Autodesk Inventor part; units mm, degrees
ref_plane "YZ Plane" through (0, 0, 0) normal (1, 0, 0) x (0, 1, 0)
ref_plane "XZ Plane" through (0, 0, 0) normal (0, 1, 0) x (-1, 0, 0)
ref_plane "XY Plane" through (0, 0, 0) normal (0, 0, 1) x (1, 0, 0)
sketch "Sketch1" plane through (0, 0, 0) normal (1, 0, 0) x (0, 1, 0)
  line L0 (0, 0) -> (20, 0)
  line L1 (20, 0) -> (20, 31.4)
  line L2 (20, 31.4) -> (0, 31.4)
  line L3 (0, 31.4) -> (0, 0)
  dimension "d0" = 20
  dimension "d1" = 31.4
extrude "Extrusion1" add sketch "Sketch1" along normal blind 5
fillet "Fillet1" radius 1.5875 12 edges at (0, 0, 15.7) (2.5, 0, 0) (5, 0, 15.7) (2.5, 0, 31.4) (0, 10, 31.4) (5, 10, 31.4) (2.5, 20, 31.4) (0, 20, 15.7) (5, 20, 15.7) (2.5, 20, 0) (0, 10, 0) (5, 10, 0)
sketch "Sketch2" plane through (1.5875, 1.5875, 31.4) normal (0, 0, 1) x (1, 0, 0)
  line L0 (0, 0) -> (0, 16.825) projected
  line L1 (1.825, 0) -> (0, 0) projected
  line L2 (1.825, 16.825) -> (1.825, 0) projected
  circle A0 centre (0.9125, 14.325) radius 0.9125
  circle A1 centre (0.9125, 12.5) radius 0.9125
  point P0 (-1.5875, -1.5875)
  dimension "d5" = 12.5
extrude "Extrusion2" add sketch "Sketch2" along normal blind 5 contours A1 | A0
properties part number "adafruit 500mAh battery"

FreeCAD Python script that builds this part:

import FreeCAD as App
import Part
import Sketcher
Q = App.Units.Quantity

doc = App.newDocument("Part")
body = doc.addObject("PartDesign::Body", "Body")

# Sketch on YZ plane
sketch1 = body.newObject("Sketcher::SketchObject", "Sketch")
sketch1.AttachmentSupport = (doc.getObject("YZ_Plane"), [""])
sketch1.MapMode = "FlatFace"
sketch1.addGeometry(Part.LineSegment(App.Vector(0, 31, 0), App.Vector(0, 0, 0)), False)
sketch1.addGeometry(Part.LineSegment(App.Vector(0, 0, 0), App.Vector(20, 0, 0)), False)
sketch1.addGeometry(Part.LineSegment(App.Vector(20, 0, 0), App.Vector(20, 31, 0)), False)
sketch1.addGeometry(Part.LineSegment(App.Vector(20, 31, 0), App.Vector(0, 31, 0)), False)
sketch1.addConstraint(Sketcher.Constraint("Coincident", 0, 2, 1, 1))
sketch1.addConstraint(Sketcher.Constraint("Coincident", 1, 2, 2, 1))
sketch1.addConstraint(Sketcher.Constraint("Coincident", 2, 2, 3, 1))
sketch1.addConstraint(Sketcher.Constraint("Coincident", 3, 2, 0, 1))
sketch1.addConstraint(Sketcher.Constraint("Vertical", 0))
sketch1.addConstraint(Sketcher.Constraint("Horizontal", 1))
sketch1.addConstraint(Sketcher.Constraint("Vertical", 2))
sketch1.addConstraint(Sketcher.Constraint("Horizontal", 3))
sketch1.addConstraint(Sketcher.Constraint("Coincident", 0, 2, -1, 1))
sketch1.addConstraint(Sketcher.Constraint("DistanceX", 1, 1, 1, 2, Q("20 mm")))
sketch1.addConstraint(Sketcher.Constraint("DistanceY", 0, 2, 0, 1, Q("31.4 mm")))
pad1 = body.newObject("PartDesign::Pad", "Pad")
pad1.Profile = sketch1
pad1.Length = 5
doc.recompute()

fillet = body.newObject("PartDesign::Fillet", "Fillet")
fillet.Base = (pad1, ["Edge1"])
fillet.UseAllEdges = True
fillet.Radius = 1.5875

# Sketch on XY plane
sketch2 = body.newObject("Sketcher::SketchObject", "Sketch001")
sketch2.AttachmentSupport = (doc.getObject("XY_Plane"), [""])
sketch2.MapMode = "FlatFace"
sketch2.AttachmentOffset = App.Placement(App.Vector(0, 0, 31.4), App.Rotation())
sketch2.addGeometry(Part.Circle(App.Vector(2.5, 14.1, 0), App.Vector(0, 0, 1), 0.9), False)
sketch2.addGeometry(Part.Circle(App.Vector(2.5, 15.9, 0), App.Vector(0, 0, 1), 0.9), False)
sketch2.addConstraint(Sketcher.Constraint("Equal", 0, 1))
sketch2.addConstraint(Sketcher.Constraint("Vertical", 0, 3, 1, 3))
sketch2.addConstraint(Sketcher.Constraint("Diameter", 0, Q("1.825 mm")))
sketch2.addConstraint(Sketcher.Constraint("DistanceX", -1, 1, 0, 3, Q("2.5 mm")))
sketch2.addConstraint(Sketcher.Constraint("DistanceY", 0, 3, 1, 3, Q("1.825 mm")))
sketch2.addConstraint(Sketcher.Constraint("DistanceY", -1, 1, 0, 3, Q("14.0875 mm")))
pad2 = body.newObject("PartDesign::Pad", "Pad001")
pad2.Profile = sketch2
pad2.Length = 5

doc.recompute()
